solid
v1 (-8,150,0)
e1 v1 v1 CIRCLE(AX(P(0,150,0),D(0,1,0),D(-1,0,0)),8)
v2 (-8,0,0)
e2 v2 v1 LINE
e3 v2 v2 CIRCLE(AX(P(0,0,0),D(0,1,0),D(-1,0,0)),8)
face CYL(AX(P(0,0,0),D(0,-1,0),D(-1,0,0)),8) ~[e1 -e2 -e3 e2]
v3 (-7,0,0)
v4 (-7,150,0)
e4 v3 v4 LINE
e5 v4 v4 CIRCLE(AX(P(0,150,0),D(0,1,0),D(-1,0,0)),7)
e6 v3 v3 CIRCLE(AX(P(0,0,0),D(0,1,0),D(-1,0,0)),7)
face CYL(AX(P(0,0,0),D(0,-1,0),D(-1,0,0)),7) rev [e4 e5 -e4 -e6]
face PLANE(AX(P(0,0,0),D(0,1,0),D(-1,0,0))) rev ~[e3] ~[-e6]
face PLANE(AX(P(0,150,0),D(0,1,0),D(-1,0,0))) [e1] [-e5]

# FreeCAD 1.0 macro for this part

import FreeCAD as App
import Part
import Sketcher
Q = App.Units.Quantity

doc = App.newDocument("Part")
body = doc.addObject("PartDesign::Body", "Body")

# Sketch on XZ plane
sketch1 = body.newObject("Sketcher::SketchObject", "Sketch")
sketch1.AttachmentSupport = (doc.getObject("XZ_Plane"), [""])
sketch1.MapMode = "FlatFace"
sketch1.addGeometry(Part.Circle(App.Vector(0, 0, 0), App.Vector(0, 0, 1), 8), False)
sketch1.addGeometry(Part.Circle(App.Vector(0, 0, 0), App.Vector(0, 0, 1), 7), False)
sketch1.addConstraint(Sketcher.Constraint("Coincident", 0, 3, -1, 1))
sketch1.addConstraint(Sketcher.Constraint("Coincident", 1, 3, -1, 1))
sketch1.addConstraint(Sketcher.Constraint("Diameter", 0, Q("16 mm")))
sketch1.addConstraint(Sketcher.Constraint("Diameter", 1, Q("14 mm")))
pad1 = body.newObject("PartDesign::Pad", "Pad")
pad1.Profile = sketch1
pad1.Length = 150
pad1.Reversed = True

doc.recompute()
